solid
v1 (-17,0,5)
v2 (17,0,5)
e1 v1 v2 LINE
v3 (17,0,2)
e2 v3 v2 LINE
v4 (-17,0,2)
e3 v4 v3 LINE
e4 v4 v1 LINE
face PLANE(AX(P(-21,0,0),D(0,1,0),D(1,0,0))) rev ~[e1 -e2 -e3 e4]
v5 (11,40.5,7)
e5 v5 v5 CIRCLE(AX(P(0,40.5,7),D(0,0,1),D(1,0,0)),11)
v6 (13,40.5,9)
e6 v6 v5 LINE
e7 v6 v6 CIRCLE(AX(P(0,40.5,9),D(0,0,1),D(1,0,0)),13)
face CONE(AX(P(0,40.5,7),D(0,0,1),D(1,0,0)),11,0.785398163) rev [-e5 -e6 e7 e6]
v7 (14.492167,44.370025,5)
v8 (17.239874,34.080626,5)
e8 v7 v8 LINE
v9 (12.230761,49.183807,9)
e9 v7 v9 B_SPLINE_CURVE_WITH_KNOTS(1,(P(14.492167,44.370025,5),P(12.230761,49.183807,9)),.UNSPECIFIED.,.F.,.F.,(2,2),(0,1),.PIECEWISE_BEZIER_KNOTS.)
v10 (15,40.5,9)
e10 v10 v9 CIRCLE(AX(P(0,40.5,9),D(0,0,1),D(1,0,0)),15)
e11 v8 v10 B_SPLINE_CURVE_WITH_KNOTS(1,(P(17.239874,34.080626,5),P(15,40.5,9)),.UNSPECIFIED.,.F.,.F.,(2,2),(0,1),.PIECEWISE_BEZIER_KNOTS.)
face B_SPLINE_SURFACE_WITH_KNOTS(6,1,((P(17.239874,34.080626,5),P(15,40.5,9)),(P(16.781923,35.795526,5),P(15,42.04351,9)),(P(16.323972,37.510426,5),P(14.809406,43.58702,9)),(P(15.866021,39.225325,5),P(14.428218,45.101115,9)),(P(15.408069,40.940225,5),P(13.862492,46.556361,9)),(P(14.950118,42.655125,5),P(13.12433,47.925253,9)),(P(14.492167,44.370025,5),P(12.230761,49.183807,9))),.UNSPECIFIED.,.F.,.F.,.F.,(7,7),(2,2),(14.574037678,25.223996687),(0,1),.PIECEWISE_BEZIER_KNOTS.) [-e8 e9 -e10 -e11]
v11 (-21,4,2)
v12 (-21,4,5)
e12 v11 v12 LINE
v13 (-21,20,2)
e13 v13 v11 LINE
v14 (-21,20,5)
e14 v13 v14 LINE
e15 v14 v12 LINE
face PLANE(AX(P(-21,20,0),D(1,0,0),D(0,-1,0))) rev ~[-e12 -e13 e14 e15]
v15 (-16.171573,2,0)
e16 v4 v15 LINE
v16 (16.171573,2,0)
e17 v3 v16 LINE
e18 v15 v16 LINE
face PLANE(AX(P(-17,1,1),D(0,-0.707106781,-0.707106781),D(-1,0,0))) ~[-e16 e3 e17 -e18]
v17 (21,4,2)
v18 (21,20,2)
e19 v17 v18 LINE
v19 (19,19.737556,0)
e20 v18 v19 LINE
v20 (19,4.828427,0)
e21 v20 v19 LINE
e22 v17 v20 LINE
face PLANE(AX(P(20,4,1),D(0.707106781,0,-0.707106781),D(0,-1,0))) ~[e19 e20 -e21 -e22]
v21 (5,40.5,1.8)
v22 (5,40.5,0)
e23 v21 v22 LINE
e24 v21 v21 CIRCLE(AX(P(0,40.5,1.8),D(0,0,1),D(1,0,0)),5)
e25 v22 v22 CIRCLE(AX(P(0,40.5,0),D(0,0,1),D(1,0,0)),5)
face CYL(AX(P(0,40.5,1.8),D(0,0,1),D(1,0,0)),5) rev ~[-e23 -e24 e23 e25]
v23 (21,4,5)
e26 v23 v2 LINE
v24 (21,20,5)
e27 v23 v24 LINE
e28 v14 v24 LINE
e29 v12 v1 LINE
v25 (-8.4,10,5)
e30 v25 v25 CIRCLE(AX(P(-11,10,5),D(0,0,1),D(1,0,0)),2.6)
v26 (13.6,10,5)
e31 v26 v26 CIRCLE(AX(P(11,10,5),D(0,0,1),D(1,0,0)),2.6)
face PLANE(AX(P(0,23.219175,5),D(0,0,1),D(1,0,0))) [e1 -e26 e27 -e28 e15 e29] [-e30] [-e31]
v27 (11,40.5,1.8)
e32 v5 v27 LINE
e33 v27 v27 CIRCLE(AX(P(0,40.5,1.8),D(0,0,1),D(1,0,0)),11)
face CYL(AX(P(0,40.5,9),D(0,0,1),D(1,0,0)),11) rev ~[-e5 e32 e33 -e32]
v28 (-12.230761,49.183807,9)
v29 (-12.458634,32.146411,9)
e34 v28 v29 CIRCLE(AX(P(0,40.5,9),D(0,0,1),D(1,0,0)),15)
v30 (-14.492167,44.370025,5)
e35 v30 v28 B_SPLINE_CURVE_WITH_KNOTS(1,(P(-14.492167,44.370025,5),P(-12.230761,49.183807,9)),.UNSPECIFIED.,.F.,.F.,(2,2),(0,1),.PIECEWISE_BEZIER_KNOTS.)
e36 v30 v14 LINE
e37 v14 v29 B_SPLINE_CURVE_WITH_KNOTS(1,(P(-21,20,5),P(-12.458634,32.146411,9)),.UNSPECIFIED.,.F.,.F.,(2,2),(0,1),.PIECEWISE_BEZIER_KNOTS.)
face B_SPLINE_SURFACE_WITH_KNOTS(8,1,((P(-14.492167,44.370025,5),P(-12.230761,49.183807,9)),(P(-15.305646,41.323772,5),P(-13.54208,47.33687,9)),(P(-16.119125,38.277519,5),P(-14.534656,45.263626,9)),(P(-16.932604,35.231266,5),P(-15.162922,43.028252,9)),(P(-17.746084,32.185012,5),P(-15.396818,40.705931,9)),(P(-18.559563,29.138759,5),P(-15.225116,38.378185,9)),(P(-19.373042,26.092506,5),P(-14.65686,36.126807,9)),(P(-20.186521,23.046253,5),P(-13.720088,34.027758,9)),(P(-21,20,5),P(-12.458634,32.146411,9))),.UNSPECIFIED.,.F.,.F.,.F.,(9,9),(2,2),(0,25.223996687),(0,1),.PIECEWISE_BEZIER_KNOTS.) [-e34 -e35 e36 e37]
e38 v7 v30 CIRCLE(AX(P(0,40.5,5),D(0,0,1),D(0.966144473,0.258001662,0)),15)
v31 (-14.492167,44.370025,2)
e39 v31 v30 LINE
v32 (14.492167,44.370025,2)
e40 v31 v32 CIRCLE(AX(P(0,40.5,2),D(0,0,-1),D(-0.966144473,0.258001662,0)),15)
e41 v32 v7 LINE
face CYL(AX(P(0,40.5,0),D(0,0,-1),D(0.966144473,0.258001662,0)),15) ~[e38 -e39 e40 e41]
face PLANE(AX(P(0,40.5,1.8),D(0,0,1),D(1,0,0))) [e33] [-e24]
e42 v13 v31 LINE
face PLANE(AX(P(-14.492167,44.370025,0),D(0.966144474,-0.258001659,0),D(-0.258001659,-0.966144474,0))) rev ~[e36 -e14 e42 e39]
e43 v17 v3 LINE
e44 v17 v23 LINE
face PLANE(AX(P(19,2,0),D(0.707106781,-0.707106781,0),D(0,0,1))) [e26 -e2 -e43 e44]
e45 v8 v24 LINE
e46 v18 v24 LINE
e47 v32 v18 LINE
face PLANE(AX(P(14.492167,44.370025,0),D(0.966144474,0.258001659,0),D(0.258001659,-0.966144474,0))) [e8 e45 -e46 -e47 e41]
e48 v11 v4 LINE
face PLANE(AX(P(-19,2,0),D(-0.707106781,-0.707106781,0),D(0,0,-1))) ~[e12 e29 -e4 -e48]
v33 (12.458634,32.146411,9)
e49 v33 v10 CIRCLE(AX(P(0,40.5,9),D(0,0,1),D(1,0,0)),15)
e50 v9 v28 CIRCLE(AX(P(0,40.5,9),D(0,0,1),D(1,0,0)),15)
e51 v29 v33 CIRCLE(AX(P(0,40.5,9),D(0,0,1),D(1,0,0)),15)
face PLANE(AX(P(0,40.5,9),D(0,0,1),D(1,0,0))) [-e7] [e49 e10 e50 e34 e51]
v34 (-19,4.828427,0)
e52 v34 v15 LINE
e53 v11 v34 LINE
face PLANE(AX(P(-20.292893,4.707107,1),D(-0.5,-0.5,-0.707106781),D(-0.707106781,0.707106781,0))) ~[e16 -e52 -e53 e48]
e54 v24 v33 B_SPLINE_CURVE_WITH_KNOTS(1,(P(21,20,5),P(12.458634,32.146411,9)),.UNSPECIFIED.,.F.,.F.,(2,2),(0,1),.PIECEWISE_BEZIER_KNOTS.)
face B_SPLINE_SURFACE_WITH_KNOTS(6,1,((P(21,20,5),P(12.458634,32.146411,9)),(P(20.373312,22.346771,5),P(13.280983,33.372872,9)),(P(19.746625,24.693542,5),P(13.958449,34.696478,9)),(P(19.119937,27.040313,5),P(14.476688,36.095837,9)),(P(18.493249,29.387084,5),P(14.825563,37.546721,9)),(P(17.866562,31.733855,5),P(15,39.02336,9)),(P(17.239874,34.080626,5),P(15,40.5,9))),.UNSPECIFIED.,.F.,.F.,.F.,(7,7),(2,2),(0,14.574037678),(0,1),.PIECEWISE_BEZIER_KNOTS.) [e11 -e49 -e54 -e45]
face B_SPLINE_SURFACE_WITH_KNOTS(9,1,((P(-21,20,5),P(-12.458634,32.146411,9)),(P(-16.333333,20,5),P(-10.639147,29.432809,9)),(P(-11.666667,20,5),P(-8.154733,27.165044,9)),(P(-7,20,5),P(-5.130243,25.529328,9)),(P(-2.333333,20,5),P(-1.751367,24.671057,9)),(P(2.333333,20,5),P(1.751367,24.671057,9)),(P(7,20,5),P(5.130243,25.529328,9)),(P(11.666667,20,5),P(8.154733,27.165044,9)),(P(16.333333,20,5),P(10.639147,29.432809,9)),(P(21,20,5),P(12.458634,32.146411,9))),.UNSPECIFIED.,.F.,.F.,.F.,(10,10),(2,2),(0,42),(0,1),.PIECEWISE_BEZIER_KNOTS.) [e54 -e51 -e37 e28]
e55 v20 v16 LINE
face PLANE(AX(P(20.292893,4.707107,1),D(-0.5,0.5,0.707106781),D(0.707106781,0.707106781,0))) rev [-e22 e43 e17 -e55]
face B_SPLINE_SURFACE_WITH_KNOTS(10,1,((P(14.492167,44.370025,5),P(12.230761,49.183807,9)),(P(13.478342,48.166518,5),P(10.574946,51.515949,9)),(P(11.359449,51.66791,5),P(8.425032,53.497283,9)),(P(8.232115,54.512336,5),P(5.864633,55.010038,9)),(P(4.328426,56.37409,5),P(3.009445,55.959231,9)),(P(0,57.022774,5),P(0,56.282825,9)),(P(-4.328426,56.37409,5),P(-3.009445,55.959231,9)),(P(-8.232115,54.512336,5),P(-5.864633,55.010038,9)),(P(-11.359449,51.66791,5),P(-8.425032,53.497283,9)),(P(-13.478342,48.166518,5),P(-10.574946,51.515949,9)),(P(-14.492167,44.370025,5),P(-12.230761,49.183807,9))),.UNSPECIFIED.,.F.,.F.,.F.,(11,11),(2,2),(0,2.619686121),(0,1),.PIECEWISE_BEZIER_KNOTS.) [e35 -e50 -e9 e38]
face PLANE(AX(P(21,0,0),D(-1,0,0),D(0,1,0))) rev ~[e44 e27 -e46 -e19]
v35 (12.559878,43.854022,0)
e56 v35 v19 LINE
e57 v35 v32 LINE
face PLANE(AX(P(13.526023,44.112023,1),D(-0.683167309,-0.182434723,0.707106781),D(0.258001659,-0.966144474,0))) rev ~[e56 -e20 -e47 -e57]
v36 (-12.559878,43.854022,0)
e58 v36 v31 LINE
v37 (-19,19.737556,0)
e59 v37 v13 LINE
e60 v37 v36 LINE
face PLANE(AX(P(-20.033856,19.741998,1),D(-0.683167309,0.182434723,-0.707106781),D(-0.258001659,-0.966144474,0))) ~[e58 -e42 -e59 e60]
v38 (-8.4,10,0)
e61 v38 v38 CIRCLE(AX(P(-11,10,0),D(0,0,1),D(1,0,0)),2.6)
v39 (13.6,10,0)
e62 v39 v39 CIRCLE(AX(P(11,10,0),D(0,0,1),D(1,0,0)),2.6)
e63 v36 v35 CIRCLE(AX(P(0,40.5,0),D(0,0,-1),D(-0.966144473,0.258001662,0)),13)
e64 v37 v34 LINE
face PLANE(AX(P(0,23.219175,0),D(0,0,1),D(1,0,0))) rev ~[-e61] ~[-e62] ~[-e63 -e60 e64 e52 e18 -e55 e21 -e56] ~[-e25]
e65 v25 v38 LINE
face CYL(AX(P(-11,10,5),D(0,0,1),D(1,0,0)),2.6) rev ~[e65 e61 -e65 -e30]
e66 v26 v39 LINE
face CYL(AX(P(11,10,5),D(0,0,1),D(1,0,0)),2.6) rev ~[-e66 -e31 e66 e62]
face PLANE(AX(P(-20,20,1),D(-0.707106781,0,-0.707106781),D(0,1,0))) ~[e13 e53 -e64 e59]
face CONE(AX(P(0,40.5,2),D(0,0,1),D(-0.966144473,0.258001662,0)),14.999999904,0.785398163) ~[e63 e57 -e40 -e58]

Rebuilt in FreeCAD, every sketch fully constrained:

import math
import FreeCAD as App
import Part
import Sketcher
from FreeCAD import Vector


def edges_at(feature, points):
    """Names of the edges that pass closest to the given points."""
    edges = feature.Shape.Edges
    near = lambda p: min(range(len(edges)), key=lambda i: edges[i].distToShape(Part.Vertex(*p))[0])
    return sorted({f"Edge{near(p) + 1}" for p in points})

doc = App.newDocument("Part")
body = doc.addObject("PartDesign::Body", "Body")

sketch1 = body.newObject("Sketcher::SketchObject", "Sketch")
sketch1.AttachmentSupport = (doc.getObject("XY_Plane"), [""])
sketch1.MapMode = "FlatFace"
sketch1.addGeometry(Part.LineSegment(Vector(-21, 20, 0), Vector(-21, 0, 0)), False)
sketch1.addGeometry(Part.LineSegment(Vector(-21, 0, 0), Vector(21, 0, 0)), False)
sketch1.addGeometry(Part.LineSegment(Vector(21, 0, 0), Vector(21, 20, 0)), False)
sketch1.addGeometry(Part.LineSegment(Vector(21, 20, 0), Vector(14, 44, 0)), False)
sketch1.addGeometry(Part.ArcOfCircle(Part.Circle(Vector(0, 41, 0), Vector(0, 0, 1), 15), math.radians(15), math.radians(165)), False)
sketch1.addGeometry(Part.LineSegment(Vector(-14, 44, 0), Vector(-21, 20, 0)), False)
sketch1.addConstraint(Sketcher.Constraint("Coincident", 0, 2, 1, 1))
sketch1.addConstraint(Sketcher.Constraint("Coincident", 1, 2, 2, 1))
sketch1.addConstraint(Sketcher.Constraint("Coincident", 2, 2, 3, 1))
sketch1.addConstraint(Sketcher.Constraint("Tangent", 3, 2, 4, 1))
sketch1.addConstraint(Sketcher.Constraint("Tangent", 4, 2, 5, 1))
sketch1.addConstraint(Sketcher.Constraint("Coincident", 5, 2, 0, 1))
sketch1.addConstraint(Sketcher.Constraint("Vertical", 0))
sketch1.addConstraint(Sketcher.Constraint("Horizontal", 1))
sketch1.addConstraint(Sketcher.Constraint("Vertical", 2))
sketch1.addConstraint(Sketcher.Constraint("Symmetric", 0, 2, 1, 2, -1, 1))
sketch1.addConstraint(Sketcher.Constraint("Symmetric", 3, 2, 4, 2, -2))
sketch1.addConstraint(Sketcher.Constraint("Radius", 4, 15.0))
sketch1.addConstraint(Sketcher.Constraint("DistanceX", 1, 1, 1, 2, 42.0))
sketch1.addConstraint(Sketcher.Constraint("DistanceY", 0, 2, 0, 1, 20.0))
sketch1.addConstraint(Sketcher.Constraint("DistanceY", -1, 1, 4, 3, 40.5))
pad1 = body.newObject("PartDesign::Pad", "Pad")
pad1.Profile = sketch1
pad1.Length = 5

sketch2 = body.newObject("Sketcher::SketchObject", "Sketch001")
sketch2.AttachmentSupport = (doc.getObject("XY_Plane"), [""])
sketch2.MapMode = "FlatFace"
sketch2.AttachmentOffset = App.Placement(Vector(0, 0, 5), App.Rotation())
sketch2.addGeometry(Part.LineSegment(Vector(-21, 20, 0), Vector(21, 20, 0)), False)
sketch2.addGeometry(Part.LineSegment(Vector(21, 20, 0), Vector(14, 44, 0)), False)
sketch2.addGeometry(Part.ArcOfCircle(Part.Circle(Vector(0, 41, 0), Vector(0, 0, 1), 15), math.radians(15), math.radians(165)), False)
sketch2.addGeometry(Part.LineSegment(Vector(-14, 44, 0), Vector(-21, 20, 0)), False)
sketch2.addConstraint(Sketcher.Constraint("Coincident", 0, 2, 1, 1))
sketch2.addConstraint(Sketcher.Constraint("Tangent", 1, 2, 2, 1))
sketch2.addConstraint(Sketcher.Constraint("Tangent", 2, 2, 3, 1))
sketch2.addConstraint(Sketcher.Constraint("Coincident", 3, 2, 0, 1))
sketch2.addConstraint(Sketcher.Constraint("Horizontal", 0))
sketch2.addConstraint(Sketcher.Constraint("Symmetric", 1, 2, 2, 2, -2))
sketch2.addConstraint(Sketcher.Constraint("Radius", 2, 15.0))
sketch2.addConstraint(Sketcher.Constraint("DistanceX", 0, 1, 0, 2, 42.0))
sketch2.addConstraint(Sketcher.Constraint("DistanceY", -1, 1, 0, 2, 20.0))
sketch2.addConstraint(Sketcher.Constraint("DistanceY", -1, 1, 2, 3, 40.5))

sketch3 = body.newObject("Sketcher::SketchObject", "Sketch002")
sketch3.AttachmentSupport = (doc.getObject("XY_Plane"), [""])
sketch3.MapMode = "FlatFace"
sketch3.AttachmentOffset = App.Placement(Vector(0, 0, 9), App.Rotation())
sketch3.addGeometry(Part.Circle(Vector(0, 40, 0), Vector(0, 0, 1), 15), False)
sketch3.addConstraint(Sketcher.Constraint("PointOnObject", 0, 3, -2))
sketch3.addConstraint(Sketcher.Constraint("Diameter", 0, 30.0))
sketch3.addConstraint(Sketcher.Constraint("DistanceY", -1, 1, 0, 3, 40.5))

additiveloft = body.newObject("PartDesign::AdditiveLoft", "AdditiveLoft")
additiveloft.Profile = sketch2
additiveloft.Sections = [sketch3]

sketch4 = body.newObject("Sketcher::SketchObject", "Sketch003")
sketch4.AttachmentSupport = (doc.getObject("XY_Plane"), [""])
sketch4.MapMode = "FlatFace"
sketch4.AttachmentOffset = App.Placement(Vector(0, 0, 9), App.Rotation())
sketch4.addGeometry(Part.Circle(Vector(0, 40, 0), Vector(0, 0, 1), 11), False)
sketch4.addConstraint(Sketcher.Constraint("PointOnObject", 0, 3, -2))
sketch4.addConstraint(Sketcher.Constraint("Diameter", 0, 22.0))
sketch4.addConstraint(Sketcher.Constraint("DistanceY", -1, 1, 0, 3, 40.5))
pocket1 = body.newObject("PartDesign::Pocket", "Pocket")
pocket1.Profile = sketch4
pocket1.Length = 7.2

sketch5 = body.newObject("Sketcher::SketchObject", "Sketch004")
sketch5.AttachmentSupport = (doc.getObject("XY_Plane"), [""])
sketch5.MapMode = "FlatFace"
sketch5.AttachmentOffset = App.Placement(Vector(0, 0, 1.8), App.Rotation())
sketch5.addGeometry(Part.Circle(Vector(0, 40, 0), Vector(0, 0, 1), 5), False)
sketch5.addConstraint(Sketcher.Constraint("PointOnObject", 0, 3, -2))
sketch5.addConstraint(Sketcher.Constraint("Diameter", 0, 10.0))
sketch5.addConstraint(Sketcher.Constraint("DistanceY", -1, 1, 0, 3, 40.5))
pocket2 = body.newObject("PartDesign::Pocket", "Pocket001")
pocket2.Profile = sketch5
pocket2.Type = "ThroughAll"

sketch6 = body.newObject("Sketcher::SketchObject", "Sketch005")
sketch6.AttachmentSupport = (doc.getObject("XY_Plane"), [""])
sketch6.MapMode = "FlatFace"
sketch6.AttachmentOffset = App.Placement(Vector(0, 0, 5), App.Rotation())
sketch6.addGeometry(Part.Circle(Vector(-11, 10, 0), Vector(0, 0, 1), 2.6), False)
sketch6.addGeometry(Part.Circle(Vector(11, 10, 0), Vector(0, 0, 1), 2.6), False)
sketch6.addConstraint(Sketcher.Constraint("Equal", 0, 1))
sketch6.addConstraint(Sketcher.Constraint("Symmetric", 0, 3, 1, 3, -2))
sketch6.addConstraint(Sketcher.Constraint("Diameter", 0, 5.2))
sketch6.addConstraint(Sketcher.Constraint("DistanceX", 0, 3, -1, 1, 11.0))
sketch6.addConstraint(Sketcher.Constraint("DistanceY", -1, 1, 0, 3, 10.0))
pocket3 = body.newObject("PartDesign::Pocket", "Pocket002")
pocket3.Profile = sketch6
pocket3.Type = "ThroughAll"
doc.recompute()

chamfer = body.newObject("PartDesign::Chamfer", "Chamfer")
chamfer.Base = (pocket3, edges_at(pocket3, [(-11, 40.5, 9)]))
chamfer.Size = 2
doc.recompute()

chamfer2 = body.newObject("PartDesign::Chamfer", "Chamfer001")
chamfer2.Base = (chamfer, edges_at(chamfer, [(21, 0, 2.5), (-21, 0, 2.5)]))
chamfer2.Size = 4
doc.recompute()

chamfer3 = body.newObject("PartDesign::Chamfer", "Chamfer002")
chamfer3.Base = (chamfer2, edges_at(chamfer2, [
    (-19, 2, 0),
    (0, 0, 0),
    (19, 2, 0),
    (21, 12, 0),
    (17.746, 32.185, 0),
    (0, 55.5, 0),
    (-17.746, 32.185, 0),
    (-21, 12, 0),
]))
chamfer3.Size = 2

doc.recompute()
